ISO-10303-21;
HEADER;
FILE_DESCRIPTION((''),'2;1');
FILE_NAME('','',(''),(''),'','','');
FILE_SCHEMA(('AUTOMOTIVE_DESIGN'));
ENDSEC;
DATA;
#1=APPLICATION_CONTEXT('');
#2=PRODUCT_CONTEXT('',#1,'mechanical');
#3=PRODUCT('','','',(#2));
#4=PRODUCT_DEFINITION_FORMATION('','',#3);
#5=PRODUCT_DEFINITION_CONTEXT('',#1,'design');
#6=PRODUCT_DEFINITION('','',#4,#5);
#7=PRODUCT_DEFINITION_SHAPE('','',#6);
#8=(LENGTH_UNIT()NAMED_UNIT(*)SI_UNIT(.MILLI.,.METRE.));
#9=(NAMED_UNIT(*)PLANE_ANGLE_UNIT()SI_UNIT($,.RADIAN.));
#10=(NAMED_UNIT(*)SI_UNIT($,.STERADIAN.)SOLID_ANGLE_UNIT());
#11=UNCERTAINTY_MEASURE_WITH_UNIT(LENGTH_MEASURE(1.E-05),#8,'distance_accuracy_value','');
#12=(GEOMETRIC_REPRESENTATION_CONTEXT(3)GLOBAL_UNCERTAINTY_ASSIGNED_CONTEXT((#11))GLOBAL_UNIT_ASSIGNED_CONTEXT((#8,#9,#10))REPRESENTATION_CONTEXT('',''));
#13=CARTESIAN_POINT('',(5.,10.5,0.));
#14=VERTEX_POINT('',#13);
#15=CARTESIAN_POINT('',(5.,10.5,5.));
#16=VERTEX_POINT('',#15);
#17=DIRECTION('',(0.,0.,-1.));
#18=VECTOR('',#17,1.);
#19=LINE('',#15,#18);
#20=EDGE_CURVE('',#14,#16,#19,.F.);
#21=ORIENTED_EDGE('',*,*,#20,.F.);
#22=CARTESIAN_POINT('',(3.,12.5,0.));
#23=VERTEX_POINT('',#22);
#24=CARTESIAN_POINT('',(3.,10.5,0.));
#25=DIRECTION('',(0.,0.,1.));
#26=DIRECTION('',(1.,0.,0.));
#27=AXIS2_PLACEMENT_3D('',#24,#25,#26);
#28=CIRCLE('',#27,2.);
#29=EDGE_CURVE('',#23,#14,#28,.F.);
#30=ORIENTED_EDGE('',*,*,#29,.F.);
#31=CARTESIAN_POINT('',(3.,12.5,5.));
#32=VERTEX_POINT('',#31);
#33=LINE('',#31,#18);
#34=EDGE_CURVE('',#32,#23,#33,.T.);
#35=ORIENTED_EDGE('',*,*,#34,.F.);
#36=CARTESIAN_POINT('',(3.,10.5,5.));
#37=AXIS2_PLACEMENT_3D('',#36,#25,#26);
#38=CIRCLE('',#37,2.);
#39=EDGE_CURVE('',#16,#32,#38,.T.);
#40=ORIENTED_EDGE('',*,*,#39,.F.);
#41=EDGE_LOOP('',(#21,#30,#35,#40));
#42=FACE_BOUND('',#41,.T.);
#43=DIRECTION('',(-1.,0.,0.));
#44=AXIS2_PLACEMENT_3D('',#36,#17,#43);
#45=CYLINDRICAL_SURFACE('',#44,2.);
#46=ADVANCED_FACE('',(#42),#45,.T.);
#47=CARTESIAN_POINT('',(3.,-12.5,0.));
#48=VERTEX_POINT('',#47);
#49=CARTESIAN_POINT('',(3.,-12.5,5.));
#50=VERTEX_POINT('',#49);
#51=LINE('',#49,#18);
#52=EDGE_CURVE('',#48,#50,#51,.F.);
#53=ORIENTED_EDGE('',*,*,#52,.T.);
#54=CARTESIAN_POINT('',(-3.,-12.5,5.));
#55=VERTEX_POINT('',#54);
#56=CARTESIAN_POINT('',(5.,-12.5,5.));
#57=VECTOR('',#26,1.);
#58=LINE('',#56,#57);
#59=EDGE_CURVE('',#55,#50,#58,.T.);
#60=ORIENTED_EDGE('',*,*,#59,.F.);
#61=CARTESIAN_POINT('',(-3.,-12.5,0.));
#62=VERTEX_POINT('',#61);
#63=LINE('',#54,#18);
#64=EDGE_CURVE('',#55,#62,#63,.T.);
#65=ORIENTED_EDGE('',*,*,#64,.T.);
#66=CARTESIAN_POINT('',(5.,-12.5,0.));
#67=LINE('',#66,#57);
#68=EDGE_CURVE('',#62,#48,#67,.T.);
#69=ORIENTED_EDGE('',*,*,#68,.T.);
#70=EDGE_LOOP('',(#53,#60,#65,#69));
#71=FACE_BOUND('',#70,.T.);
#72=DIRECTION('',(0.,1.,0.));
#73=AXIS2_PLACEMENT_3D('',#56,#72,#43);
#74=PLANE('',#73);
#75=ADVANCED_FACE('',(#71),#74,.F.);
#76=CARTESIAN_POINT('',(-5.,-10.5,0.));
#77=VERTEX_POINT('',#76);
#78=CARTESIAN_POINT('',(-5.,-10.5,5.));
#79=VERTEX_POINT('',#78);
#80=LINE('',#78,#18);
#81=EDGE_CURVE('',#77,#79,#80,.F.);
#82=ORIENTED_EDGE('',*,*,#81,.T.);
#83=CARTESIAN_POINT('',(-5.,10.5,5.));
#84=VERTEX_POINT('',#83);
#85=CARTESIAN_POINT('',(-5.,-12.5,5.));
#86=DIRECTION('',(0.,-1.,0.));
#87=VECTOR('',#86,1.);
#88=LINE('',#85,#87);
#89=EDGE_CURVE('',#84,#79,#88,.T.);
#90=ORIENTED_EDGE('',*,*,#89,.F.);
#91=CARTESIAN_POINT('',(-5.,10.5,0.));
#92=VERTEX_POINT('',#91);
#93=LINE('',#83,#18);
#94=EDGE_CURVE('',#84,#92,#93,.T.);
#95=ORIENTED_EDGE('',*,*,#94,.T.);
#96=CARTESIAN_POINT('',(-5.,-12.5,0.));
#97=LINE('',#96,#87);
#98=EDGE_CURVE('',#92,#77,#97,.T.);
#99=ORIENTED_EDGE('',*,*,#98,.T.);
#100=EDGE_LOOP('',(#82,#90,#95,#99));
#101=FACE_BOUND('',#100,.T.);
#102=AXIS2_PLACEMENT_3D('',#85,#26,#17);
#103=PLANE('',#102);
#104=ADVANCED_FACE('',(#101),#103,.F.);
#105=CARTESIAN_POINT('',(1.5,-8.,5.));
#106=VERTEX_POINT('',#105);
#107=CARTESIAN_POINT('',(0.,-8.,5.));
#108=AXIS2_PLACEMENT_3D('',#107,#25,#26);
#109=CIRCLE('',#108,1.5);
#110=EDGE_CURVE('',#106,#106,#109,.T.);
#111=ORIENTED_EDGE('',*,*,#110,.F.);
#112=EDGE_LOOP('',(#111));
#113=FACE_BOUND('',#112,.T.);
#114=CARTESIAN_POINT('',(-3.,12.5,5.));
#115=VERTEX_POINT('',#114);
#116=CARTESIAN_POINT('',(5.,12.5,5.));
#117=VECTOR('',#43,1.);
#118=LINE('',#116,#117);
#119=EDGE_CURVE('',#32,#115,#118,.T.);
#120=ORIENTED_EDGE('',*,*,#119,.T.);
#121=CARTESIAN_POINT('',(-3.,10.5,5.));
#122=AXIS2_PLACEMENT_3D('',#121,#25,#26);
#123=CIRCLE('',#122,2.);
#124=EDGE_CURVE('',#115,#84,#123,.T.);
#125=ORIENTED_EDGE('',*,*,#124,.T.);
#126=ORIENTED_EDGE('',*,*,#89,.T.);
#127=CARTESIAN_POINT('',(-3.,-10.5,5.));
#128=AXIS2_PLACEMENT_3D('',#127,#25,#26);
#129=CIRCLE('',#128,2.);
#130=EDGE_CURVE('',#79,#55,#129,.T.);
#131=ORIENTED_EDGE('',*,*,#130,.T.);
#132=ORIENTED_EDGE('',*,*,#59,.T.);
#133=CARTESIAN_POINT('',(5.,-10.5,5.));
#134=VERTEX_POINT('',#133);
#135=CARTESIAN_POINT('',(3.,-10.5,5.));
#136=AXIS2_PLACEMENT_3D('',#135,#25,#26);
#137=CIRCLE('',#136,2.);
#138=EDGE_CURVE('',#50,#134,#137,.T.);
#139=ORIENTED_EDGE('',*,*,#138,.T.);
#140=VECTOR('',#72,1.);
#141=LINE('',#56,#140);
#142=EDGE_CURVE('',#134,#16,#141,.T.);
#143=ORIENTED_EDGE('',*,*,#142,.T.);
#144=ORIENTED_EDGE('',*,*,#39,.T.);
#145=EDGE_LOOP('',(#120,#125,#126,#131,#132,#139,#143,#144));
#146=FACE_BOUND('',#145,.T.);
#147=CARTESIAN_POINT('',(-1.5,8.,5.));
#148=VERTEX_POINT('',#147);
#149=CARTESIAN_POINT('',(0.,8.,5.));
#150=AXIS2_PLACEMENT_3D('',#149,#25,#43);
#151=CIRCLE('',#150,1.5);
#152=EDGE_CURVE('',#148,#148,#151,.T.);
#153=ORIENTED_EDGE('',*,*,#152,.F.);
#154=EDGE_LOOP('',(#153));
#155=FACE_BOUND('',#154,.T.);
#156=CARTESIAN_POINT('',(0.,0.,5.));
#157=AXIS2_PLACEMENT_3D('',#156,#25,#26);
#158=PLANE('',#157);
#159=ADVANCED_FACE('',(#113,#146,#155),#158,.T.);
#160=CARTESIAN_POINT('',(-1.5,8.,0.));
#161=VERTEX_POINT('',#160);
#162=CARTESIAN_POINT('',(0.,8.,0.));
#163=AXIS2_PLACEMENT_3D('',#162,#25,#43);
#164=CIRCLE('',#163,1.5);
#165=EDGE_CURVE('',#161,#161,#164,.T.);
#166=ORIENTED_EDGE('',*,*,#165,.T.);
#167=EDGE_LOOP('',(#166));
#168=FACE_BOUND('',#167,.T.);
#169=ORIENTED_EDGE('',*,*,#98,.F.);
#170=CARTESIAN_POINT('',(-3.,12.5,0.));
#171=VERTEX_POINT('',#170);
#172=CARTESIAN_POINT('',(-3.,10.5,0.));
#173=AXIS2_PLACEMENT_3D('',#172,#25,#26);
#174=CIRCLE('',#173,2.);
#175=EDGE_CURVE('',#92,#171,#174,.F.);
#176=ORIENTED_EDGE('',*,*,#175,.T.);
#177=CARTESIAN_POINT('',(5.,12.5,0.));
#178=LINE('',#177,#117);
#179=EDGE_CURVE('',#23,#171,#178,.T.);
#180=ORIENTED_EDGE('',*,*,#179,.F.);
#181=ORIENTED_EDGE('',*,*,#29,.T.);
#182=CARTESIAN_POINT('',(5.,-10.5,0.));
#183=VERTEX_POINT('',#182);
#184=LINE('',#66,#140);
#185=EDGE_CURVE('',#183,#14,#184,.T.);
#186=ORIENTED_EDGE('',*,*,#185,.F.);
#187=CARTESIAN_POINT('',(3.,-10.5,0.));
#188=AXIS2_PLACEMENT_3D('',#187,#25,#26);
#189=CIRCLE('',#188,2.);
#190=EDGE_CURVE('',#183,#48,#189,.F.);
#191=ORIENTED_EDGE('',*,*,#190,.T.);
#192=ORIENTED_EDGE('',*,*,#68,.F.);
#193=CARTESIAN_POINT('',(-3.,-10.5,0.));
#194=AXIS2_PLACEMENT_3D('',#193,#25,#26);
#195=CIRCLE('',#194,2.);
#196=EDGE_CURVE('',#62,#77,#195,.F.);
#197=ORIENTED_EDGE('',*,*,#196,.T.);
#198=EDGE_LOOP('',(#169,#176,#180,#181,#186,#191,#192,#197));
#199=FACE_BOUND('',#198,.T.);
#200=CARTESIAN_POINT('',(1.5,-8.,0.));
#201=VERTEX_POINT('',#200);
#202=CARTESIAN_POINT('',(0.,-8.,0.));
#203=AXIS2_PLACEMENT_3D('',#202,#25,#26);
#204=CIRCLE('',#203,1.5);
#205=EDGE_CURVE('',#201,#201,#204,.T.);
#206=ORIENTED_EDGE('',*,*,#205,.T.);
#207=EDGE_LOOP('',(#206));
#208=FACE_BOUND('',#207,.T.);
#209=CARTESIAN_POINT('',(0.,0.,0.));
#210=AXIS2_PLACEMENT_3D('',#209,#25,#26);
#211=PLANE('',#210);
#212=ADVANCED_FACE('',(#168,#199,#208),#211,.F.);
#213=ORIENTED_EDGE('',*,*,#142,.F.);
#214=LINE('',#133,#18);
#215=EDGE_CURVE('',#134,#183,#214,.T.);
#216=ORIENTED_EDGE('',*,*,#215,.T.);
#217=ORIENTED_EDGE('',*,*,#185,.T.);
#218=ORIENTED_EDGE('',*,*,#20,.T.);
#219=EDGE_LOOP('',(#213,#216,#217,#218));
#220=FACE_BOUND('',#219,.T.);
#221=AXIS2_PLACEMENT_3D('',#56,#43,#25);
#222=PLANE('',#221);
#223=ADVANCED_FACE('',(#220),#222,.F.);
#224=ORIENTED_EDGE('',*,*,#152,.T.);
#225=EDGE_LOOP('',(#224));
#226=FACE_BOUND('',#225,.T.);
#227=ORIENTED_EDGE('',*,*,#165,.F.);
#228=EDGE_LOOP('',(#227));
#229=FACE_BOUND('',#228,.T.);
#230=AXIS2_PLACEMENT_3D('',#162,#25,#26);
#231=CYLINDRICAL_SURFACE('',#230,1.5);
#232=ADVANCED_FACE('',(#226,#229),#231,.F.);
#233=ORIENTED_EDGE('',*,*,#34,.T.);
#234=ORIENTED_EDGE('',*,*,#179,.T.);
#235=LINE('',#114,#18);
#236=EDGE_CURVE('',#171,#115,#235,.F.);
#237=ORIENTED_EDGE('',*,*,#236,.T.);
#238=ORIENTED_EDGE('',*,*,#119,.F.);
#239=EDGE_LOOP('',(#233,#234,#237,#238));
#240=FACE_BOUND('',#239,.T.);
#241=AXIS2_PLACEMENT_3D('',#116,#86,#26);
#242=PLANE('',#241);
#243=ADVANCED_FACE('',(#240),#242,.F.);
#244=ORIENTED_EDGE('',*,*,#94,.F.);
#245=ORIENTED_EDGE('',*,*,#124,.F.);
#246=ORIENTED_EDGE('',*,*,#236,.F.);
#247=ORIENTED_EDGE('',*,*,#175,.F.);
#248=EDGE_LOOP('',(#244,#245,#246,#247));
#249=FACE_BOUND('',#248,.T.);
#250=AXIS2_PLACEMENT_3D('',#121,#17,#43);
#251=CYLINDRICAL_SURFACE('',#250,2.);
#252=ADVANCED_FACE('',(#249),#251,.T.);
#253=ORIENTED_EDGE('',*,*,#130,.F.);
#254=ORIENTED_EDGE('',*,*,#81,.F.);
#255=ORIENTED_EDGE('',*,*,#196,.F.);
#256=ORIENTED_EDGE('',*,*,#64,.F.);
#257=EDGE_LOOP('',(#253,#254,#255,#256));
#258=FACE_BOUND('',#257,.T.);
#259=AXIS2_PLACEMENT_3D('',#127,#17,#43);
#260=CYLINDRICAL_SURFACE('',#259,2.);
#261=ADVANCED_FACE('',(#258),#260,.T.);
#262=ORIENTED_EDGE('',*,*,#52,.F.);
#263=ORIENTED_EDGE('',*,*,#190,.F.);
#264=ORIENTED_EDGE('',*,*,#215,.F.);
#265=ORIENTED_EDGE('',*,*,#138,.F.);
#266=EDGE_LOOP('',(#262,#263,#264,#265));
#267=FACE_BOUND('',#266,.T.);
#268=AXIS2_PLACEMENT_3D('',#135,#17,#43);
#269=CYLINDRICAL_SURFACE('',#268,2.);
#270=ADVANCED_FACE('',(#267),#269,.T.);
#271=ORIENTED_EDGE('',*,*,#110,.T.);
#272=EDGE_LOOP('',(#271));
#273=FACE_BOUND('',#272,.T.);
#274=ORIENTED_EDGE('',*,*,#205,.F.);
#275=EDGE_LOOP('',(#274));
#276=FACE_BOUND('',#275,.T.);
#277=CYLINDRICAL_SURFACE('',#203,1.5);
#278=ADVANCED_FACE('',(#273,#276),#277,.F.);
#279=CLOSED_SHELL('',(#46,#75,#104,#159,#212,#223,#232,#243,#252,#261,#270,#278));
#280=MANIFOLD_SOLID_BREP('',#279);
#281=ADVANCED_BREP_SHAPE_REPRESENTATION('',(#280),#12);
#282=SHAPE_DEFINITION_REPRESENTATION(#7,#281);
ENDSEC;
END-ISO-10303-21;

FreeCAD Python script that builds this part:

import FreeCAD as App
import Part
import Sketcher

V = App.Vector
Q = App.Units.Quantity


def edges_at(feature, points):
    """Names of the edges that pass closest to the given points."""
    edges = feature.Shape.Edges
    near = lambda p: min(range(len(edges)), key=lambda i: edges[i].distToShape(Part.Vertex(*p))[0])
    return sorted({f"Edge{near(p) + 1}" for p in points})


def add_polygon(sketch, points):
    """Adds a closed chain of lines whose ends are joined by coincident constraints."""
    first, n = sketch.GeometryCount, len(points)
    for a, b in zip(points, points[1:] + points[:1]):
        sketch.addGeometry(Part.LineSegment(App.Vector(*a, 0), App.Vector(*b, 0)), False)
    for i in range(n):
        sketch.addConstraint(Sketcher.Constraint("Coincident", first + i, 2, first + (i + 1) % n, 1))

doc = App.newDocument("Part")
params = doc.addObject("Spreadsheet::Sheet", "Params")
for row, (alias, value) in enumerate([
    ("sketch1_width", "10 mm"),
    ("sketch1_height", "25 mm"),
    ("pad1_length", "5 mm"),
    ("sketch2_diameter", "3 mm"),
    ("fillet_radius", "2 mm"),
], start=1):
    params.set(f"A{row}", alias)
    params.set(f"B{row}", "=" + value)
    params.setAlias(f"B{row}", alias)

body = doc.addObject("PartDesign::Body", "Body")

sketch1 = body.newObject("Sketcher::SketchObject", "Sketch")
sketch1.AttachmentSupport = (doc.getObject("XY_Plane"), [""])
sketch1.MapMode = "FlatFace"
add_polygon(sketch1, [(-5, 12), (-5, -12), (5, -12), (5, 12)])
sketch1.addConstraint([
    Sketcher.Constraint("Vertical", 0),
    Sketcher.Constraint("Horizontal", 1),
    Sketcher.Constraint("Vertical", 2),
    Sketcher.Constraint("Horizontal", 3),
    Sketcher.Constraint("Symmetric", 0, 2, 2, 2, -1, 1),
    Sketcher.Constraint("DistanceX", 1, 1, 1, 2, Q("10 mm")),
    Sketcher.Constraint("DistanceY", 0, 2, 0, 1, Q("25 mm")),
])
sketch1.setExpression("Constraints[9]", "Params.sketch1_width")
sketch1.setExpression("Constraints[10]", "Params.sketch1_height")
pad1 = body.newObject("PartDesign::Pad", "Pad")
pad1.Profile = sketch1
pad1.setExpression("Length", "Params.pad1_length")

sketch2 = body.newObject("Sketcher::SketchObject", "Sketch001")
sketch2.AttachmentSupport = (doc.getObject("XY_Plane"), [""])
sketch2.MapMode = "FlatFace"
sketch2.AttachmentOffset = App.Placement(V(0, 0, 5), App.Rotation())
sketch2.addGeometry([
    Part.Circle(V(0, -8, 0), V(0, 0, 1), 1.5),
    Part.Circle(V(0, 8, 0), V(0, 0, 1), 1.5),
], False)
sketch2.addConstraint([
    Sketcher.Constraint("Equal", 0, 1),
    Sketcher.Constraint("Symmetric", 0, 3, 1, 3, -1, 1),
    Sketcher.Constraint("PointOnObject", 0, 3, -2),
    Sketcher.Constraint("Diameter", 0, Q("3 mm")),
    Sketcher.Constraint("DistanceY", 0, 3, -1, 1, Q("8 mm")),
])
sketch2.setExpression("Constraints[3]", "Params.sketch2_diameter")
pocket1 = body.newObject("PartDesign::Pocket", "Pocket")
pocket1.Profile = sketch2
pocket1.Type = "ThroughAll"
doc.recompute()

fillet = body.newObject("PartDesign::Fillet", "Fillet")
fillet.Base = (pocket1, edges_at(pocket1, [
    (-5, 12.5, 2.5),
    (5, 12.5, 2.5),
    (5, -12.5, 2.5),
    (-5, -12.5, 2.5),
]))
fillet.setExpression("Radius", "Params.fillet_radius")

doc.recompute()
